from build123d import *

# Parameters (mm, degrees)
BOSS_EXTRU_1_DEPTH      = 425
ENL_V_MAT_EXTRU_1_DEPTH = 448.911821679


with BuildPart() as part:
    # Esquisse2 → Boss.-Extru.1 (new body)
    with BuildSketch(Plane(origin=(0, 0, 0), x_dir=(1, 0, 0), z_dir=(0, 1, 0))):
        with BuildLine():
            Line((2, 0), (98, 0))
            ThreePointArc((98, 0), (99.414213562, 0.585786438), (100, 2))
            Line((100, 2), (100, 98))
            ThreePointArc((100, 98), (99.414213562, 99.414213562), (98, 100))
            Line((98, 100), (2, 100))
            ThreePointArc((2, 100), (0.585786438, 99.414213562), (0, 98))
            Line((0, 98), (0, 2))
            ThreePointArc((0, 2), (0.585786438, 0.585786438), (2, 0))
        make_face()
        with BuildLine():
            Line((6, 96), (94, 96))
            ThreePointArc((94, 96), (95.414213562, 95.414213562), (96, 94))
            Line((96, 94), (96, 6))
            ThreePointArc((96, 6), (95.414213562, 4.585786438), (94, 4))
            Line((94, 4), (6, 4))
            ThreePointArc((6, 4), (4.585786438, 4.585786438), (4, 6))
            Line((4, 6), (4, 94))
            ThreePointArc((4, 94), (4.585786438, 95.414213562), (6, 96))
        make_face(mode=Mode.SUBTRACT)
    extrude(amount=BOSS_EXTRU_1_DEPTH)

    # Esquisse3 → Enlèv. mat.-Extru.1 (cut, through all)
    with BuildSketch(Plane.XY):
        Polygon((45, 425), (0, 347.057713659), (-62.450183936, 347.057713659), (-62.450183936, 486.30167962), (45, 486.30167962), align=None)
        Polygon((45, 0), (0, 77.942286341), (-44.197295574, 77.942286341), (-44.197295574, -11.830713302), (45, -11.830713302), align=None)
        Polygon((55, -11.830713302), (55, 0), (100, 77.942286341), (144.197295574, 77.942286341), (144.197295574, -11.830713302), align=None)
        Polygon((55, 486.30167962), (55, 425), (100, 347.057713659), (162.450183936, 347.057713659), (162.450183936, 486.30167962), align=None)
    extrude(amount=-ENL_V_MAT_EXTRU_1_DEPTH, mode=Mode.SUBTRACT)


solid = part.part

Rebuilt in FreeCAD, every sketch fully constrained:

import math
import FreeCAD as App
import Part
import Sketcher

V = App.Vector
Q = App.Units.Quantity


def add_polygon(sketch, points):
    """Adds a closed chain of lines whose ends are joined by coincident constraints."""
    first, n = sketch.GeometryCount, len(points)
    for a, b in zip(points, points[1:] + points[:1]):
        sketch.addGeometry(Part.LineSegment(App.Vector(*a, 0), App.Vector(*b, 0)), False)
    for i in range(n):
        sketch.addConstraint(Sketcher.Constraint("Coincident", first + i, 2, first + (i + 1) % n, 1))

doc = App.newDocument("Part")
body = doc.addObject("PartDesign::Body", "Body")

# Sketch on XZ plane
sketch1 = body.newObject("Sketcher::SketchObject", "Sketch")
sketch1.AttachmentSupport = (doc.getObject("XZ_Plane"), [""])
sketch1.MapMode = "FlatFace"
sketch1.addGeometry([
    Part.LineSegment(V(2, 0, 0), V(98, 0, 0)),  # 0
    Part.ArcOfCircle(Part.Circle(V(98, -2, 0), V(0, 0, 1), 2), math.radians(0), math.radians(90)),  # 1
    Part.LineSegment(V(100, -2, 0), V(100, -98, 0)),  # 2
    Part.ArcOfCircle(Part.Circle(V(98, -98, 0), V(0, 0, 1), 2), math.radians(-90), math.radians(0)),  # 3
    Part.LineSegment(V(98, -100, 0), V(2, -100, 0)),  # 4
    Part.ArcOfCircle(Part.Circle(V(2, -98, 0), V(0, 0, 1), 2), math.radians(-180), math.radians(-90)),  # 5
    Part.LineSegment(V(0, -98, 0), V(0, -2, 0)),  # 6
    Part.ArcOfCircle(Part.Circle(V(2, -2, 0), V(0, 0, 1), 2), math.radians(90), math.radians(180)),  # 7
    Part.ArcOfCircle(Part.Circle(V(6, -94, 0), V(0, 0, 1), 2), math.radians(-180), math.radians(-90)),  # 8
    Part.LineSegment(V(6, -96, 0), V(94, -96, 0)),  # 9
    Part.ArcOfCircle(Part.Circle(V(94, -94, 0), V(0, 0, 1), 2), math.radians(-90), math.radians(0)),  # 10
    Part.LineSegment(V(96, -94, 0), V(96, -6, 0)),  # 11
    Part.ArcOfCircle(Part.Circle(V(94, -6, 0), V(0, 0, 1), 2), math.radians(0), math.radians(90)),  # 12
    Part.LineSegment(V(94, -4, 0), V(6, -4, 0)),  # 13
    Part.ArcOfCircle(Part.Circle(V(6, -6, 0), V(0, 0, 1), 2), math.radians(90), math.radians(180)),  # 14
    Part.LineSegment(V(4, -6, 0), V(4, -94, 0)),  # 15
], False)
sketch1.addConstraint([
    Sketcher.Constraint("Tangent", 0, 2, 1, 2),
    Sketcher.Constraint("Tangent", 1, 1, 2, 1),
    Sketcher.Constraint("Tangent", 2, 2, 3, 2),
    Sketcher.Constraint("Tangent", 3, 1, 4, 1),
    Sketcher.Constraint("Tangent", 4, 2, 5, 2),
    Sketcher.Constraint("Tangent", 5, 1, 6, 1),
    Sketcher.Constraint("Tangent", 6, 2, 7, 2),
    Sketcher.Constraint("Tangent", 7, 1, 0, 1),
    Sketcher.Constraint("Tangent", 8, 2, 9, 1),
    Sketcher.Constraint("Tangent", 9, 2, 10, 1),
    Sketcher.Constraint("Tangent", 10, 2, 11, 1),
    Sketcher.Constraint("Tangent", 11, 2, 12, 1),
    Sketcher.Constraint("Tangent", 12, 2, 13, 1),
    Sketcher.Constraint("Tangent", 13, 2, 14, 1),
    Sketcher.Constraint("Tangent", 14, 2, 15, 1),
    Sketcher.Constraint("Tangent", 15, 2, 8, 1),
    Sketcher.Constraint("Horizontal", 0),
    Sketcher.Constraint("Vertical", 2),
    Sketcher.Constraint("Horizontal", 4),
    Sketcher.Constraint("Vertical", 6),
    Sketcher.Constraint("Horizontal", 9),
    Sketcher.Constraint("Vertical", 11),
    Sketcher.Constraint("Horizontal", 13),
    Sketcher.Constraint("Vertical", 15),
    Sketcher.Constraint("Equal", 1, 3),
    Sketcher.Constraint("Equal", 3, 5),
    Sketcher.Constraint("Equal", 5, 7),
    Sketcher.Constraint("Equal", 7, 8),
    Sketcher.Constraint("Equal", 8, 10),
    Sketcher.Constraint("Equal", 10, 12),
    Sketcher.Constraint("Equal", 12, 14),
    Sketcher.Constraint("PointOnObject", 0, 2, -1),
    Sketcher.Constraint("PointOnObject", 5, 1, -2),
    Sketcher.Constraint("Equal", 4, 2),
    Sketcher.Constraint("Equal", 13, 11),
    Sketcher.Constraint("Radius", 1, Q("2 mm")),
    Sketcher.Constraint("DistanceX", 0, 1, 0, 2, Q("96 mm")),
    Sketcher.Constraint("DistanceX", 9, 1, 9, 2, Q("88 mm")),
    Sketcher.Constraint("DistanceX", -1, 1, 8, 3, Q("6 mm")),
    Sketcher.Constraint("DistanceY", 8, 3, -1, 1, Q("94 mm")),
])
pad1 = body.newObject("PartDesign::Pad", "Pad")
pad1.Profile = sketch1
pad1.Length = 425
pad1.Reversed = True

# Sketch on XY plane
sketch2 = body.newObject("Sketcher::SketchObject", "Sketch001")
sketch2.AttachmentSupport = (doc.getObject("XY_Plane"), [""])
sketch2.MapMode = "FlatFace"
add_polygon(sketch2, [(0, 347), (45, 425), (45, 486), (-62, 486), (-62, 347)])  # lines 0-4
add_polygon(sketch2, [(45, 0), (0, 78), (-44, 78), (-44, -12), (45, -12)])  # lines 5-9
add_polygon(sketch2, [(55, 0), (55, -12), (144, -12), (144, 78), (100, 78)])  # lines 10-14
add_polygon(sketch2, [(55, 486), (55, 425), (100, 347), (162, 347), (162, 486)])  # lines 15-19
sketch2.addConstraint([
    Sketcher.Constraint("Vertical", 1),
    Sketcher.Constraint("Horizontal", 2),
    Sketcher.Constraint("Vertical", 3),
    Sketcher.Constraint("Horizontal", 4),
    Sketcher.Constraint("Horizontal", 6),
    Sketcher.Constraint("Vertical", 7),
    Sketcher.Constraint("Horizontal", 8),
    Sketcher.Constraint("Vertical", 9),
    Sketcher.Constraint("Vertical", 10),
    Sketcher.Constraint("Horizontal", 11),
    Sketcher.Constraint("Vertical", 12),
    Sketcher.Constraint("Horizontal", 13),
    Sketcher.Constraint("Vertical", 15),
    Sketcher.Constraint("Horizontal", 17),
    Sketcher.Constraint("Vertical", 18),
    Sketcher.Constraint("Horizontal", 19),
    Sketcher.Constraint("PointOnObject", 4, 2, -2),
    Sketcher.Constraint("PointOnObject", 5, 2, -2),
    Sketcher.Constraint("PointOnObject", 9, 2, -1),
    Sketcher.Constraint("PointOnObject", 14, 2, -1),
    Sketcher.Constraint("Parallel", 0, 14),
    Sketcher.Constraint("Parallel", 5, 16),
    Sketcher.Constraint("Horizontal", 8, 2, 10, 2),
    Sketcher.Constraint("Horizontal", 6, 2, 12, 2),
    Sketcher.Constraint("Horizontal", 0, 2, 15, 2),
    Sketcher.Constraint("Horizontal", 4, 2, 16, 2),
    Sketcher.Constraint("Horizontal", 2, 2, 18, 2),
    Sketcher.Constraint("Vertical", 1, 2, 8, 2),
    Sketcher.Constraint("Vertical", 14, 2, 15, 2),
    Sketcher.Constraint("Vertical", 13, 2, 16, 2),
    Sketcher.Constraint("Equal", 8, 11),
    Sketcher.Constraint("Equal", 4, 17),
    Sketcher.Constraint("Angle", 0, Q("60 deg")),
    Sketcher.Constraint("Distance", 0, Q("90 mm")),
    Sketcher.Constraint("DistanceY", -1, 1, 0, 2, Q("425 mm")),
    Sketcher.Constraint("DistanceX", -1, 1, 10, 2, Q("55 mm")),
    Sketcher.Constraint("DistanceY", 7, 2, 7, 1, Q("89.773 mm")),
    Sketcher.Constraint("DistanceY", 1, 1, 1, 2, Q("61.30168 mm")),
    Sketcher.Constraint("DistanceX", 2, 2, 2, 1, Q("107.450184 mm")),
    Sketcher.Constraint("DistanceX", 6, 2, 6, 1, Q("44.197296 mm")),
])
pocket1 = body.newObject("PartDesign::Pocket", "Pocket")
pocket1.Profile = sketch2
pocket1.Type = "ThroughAll"

doc.recompute()
